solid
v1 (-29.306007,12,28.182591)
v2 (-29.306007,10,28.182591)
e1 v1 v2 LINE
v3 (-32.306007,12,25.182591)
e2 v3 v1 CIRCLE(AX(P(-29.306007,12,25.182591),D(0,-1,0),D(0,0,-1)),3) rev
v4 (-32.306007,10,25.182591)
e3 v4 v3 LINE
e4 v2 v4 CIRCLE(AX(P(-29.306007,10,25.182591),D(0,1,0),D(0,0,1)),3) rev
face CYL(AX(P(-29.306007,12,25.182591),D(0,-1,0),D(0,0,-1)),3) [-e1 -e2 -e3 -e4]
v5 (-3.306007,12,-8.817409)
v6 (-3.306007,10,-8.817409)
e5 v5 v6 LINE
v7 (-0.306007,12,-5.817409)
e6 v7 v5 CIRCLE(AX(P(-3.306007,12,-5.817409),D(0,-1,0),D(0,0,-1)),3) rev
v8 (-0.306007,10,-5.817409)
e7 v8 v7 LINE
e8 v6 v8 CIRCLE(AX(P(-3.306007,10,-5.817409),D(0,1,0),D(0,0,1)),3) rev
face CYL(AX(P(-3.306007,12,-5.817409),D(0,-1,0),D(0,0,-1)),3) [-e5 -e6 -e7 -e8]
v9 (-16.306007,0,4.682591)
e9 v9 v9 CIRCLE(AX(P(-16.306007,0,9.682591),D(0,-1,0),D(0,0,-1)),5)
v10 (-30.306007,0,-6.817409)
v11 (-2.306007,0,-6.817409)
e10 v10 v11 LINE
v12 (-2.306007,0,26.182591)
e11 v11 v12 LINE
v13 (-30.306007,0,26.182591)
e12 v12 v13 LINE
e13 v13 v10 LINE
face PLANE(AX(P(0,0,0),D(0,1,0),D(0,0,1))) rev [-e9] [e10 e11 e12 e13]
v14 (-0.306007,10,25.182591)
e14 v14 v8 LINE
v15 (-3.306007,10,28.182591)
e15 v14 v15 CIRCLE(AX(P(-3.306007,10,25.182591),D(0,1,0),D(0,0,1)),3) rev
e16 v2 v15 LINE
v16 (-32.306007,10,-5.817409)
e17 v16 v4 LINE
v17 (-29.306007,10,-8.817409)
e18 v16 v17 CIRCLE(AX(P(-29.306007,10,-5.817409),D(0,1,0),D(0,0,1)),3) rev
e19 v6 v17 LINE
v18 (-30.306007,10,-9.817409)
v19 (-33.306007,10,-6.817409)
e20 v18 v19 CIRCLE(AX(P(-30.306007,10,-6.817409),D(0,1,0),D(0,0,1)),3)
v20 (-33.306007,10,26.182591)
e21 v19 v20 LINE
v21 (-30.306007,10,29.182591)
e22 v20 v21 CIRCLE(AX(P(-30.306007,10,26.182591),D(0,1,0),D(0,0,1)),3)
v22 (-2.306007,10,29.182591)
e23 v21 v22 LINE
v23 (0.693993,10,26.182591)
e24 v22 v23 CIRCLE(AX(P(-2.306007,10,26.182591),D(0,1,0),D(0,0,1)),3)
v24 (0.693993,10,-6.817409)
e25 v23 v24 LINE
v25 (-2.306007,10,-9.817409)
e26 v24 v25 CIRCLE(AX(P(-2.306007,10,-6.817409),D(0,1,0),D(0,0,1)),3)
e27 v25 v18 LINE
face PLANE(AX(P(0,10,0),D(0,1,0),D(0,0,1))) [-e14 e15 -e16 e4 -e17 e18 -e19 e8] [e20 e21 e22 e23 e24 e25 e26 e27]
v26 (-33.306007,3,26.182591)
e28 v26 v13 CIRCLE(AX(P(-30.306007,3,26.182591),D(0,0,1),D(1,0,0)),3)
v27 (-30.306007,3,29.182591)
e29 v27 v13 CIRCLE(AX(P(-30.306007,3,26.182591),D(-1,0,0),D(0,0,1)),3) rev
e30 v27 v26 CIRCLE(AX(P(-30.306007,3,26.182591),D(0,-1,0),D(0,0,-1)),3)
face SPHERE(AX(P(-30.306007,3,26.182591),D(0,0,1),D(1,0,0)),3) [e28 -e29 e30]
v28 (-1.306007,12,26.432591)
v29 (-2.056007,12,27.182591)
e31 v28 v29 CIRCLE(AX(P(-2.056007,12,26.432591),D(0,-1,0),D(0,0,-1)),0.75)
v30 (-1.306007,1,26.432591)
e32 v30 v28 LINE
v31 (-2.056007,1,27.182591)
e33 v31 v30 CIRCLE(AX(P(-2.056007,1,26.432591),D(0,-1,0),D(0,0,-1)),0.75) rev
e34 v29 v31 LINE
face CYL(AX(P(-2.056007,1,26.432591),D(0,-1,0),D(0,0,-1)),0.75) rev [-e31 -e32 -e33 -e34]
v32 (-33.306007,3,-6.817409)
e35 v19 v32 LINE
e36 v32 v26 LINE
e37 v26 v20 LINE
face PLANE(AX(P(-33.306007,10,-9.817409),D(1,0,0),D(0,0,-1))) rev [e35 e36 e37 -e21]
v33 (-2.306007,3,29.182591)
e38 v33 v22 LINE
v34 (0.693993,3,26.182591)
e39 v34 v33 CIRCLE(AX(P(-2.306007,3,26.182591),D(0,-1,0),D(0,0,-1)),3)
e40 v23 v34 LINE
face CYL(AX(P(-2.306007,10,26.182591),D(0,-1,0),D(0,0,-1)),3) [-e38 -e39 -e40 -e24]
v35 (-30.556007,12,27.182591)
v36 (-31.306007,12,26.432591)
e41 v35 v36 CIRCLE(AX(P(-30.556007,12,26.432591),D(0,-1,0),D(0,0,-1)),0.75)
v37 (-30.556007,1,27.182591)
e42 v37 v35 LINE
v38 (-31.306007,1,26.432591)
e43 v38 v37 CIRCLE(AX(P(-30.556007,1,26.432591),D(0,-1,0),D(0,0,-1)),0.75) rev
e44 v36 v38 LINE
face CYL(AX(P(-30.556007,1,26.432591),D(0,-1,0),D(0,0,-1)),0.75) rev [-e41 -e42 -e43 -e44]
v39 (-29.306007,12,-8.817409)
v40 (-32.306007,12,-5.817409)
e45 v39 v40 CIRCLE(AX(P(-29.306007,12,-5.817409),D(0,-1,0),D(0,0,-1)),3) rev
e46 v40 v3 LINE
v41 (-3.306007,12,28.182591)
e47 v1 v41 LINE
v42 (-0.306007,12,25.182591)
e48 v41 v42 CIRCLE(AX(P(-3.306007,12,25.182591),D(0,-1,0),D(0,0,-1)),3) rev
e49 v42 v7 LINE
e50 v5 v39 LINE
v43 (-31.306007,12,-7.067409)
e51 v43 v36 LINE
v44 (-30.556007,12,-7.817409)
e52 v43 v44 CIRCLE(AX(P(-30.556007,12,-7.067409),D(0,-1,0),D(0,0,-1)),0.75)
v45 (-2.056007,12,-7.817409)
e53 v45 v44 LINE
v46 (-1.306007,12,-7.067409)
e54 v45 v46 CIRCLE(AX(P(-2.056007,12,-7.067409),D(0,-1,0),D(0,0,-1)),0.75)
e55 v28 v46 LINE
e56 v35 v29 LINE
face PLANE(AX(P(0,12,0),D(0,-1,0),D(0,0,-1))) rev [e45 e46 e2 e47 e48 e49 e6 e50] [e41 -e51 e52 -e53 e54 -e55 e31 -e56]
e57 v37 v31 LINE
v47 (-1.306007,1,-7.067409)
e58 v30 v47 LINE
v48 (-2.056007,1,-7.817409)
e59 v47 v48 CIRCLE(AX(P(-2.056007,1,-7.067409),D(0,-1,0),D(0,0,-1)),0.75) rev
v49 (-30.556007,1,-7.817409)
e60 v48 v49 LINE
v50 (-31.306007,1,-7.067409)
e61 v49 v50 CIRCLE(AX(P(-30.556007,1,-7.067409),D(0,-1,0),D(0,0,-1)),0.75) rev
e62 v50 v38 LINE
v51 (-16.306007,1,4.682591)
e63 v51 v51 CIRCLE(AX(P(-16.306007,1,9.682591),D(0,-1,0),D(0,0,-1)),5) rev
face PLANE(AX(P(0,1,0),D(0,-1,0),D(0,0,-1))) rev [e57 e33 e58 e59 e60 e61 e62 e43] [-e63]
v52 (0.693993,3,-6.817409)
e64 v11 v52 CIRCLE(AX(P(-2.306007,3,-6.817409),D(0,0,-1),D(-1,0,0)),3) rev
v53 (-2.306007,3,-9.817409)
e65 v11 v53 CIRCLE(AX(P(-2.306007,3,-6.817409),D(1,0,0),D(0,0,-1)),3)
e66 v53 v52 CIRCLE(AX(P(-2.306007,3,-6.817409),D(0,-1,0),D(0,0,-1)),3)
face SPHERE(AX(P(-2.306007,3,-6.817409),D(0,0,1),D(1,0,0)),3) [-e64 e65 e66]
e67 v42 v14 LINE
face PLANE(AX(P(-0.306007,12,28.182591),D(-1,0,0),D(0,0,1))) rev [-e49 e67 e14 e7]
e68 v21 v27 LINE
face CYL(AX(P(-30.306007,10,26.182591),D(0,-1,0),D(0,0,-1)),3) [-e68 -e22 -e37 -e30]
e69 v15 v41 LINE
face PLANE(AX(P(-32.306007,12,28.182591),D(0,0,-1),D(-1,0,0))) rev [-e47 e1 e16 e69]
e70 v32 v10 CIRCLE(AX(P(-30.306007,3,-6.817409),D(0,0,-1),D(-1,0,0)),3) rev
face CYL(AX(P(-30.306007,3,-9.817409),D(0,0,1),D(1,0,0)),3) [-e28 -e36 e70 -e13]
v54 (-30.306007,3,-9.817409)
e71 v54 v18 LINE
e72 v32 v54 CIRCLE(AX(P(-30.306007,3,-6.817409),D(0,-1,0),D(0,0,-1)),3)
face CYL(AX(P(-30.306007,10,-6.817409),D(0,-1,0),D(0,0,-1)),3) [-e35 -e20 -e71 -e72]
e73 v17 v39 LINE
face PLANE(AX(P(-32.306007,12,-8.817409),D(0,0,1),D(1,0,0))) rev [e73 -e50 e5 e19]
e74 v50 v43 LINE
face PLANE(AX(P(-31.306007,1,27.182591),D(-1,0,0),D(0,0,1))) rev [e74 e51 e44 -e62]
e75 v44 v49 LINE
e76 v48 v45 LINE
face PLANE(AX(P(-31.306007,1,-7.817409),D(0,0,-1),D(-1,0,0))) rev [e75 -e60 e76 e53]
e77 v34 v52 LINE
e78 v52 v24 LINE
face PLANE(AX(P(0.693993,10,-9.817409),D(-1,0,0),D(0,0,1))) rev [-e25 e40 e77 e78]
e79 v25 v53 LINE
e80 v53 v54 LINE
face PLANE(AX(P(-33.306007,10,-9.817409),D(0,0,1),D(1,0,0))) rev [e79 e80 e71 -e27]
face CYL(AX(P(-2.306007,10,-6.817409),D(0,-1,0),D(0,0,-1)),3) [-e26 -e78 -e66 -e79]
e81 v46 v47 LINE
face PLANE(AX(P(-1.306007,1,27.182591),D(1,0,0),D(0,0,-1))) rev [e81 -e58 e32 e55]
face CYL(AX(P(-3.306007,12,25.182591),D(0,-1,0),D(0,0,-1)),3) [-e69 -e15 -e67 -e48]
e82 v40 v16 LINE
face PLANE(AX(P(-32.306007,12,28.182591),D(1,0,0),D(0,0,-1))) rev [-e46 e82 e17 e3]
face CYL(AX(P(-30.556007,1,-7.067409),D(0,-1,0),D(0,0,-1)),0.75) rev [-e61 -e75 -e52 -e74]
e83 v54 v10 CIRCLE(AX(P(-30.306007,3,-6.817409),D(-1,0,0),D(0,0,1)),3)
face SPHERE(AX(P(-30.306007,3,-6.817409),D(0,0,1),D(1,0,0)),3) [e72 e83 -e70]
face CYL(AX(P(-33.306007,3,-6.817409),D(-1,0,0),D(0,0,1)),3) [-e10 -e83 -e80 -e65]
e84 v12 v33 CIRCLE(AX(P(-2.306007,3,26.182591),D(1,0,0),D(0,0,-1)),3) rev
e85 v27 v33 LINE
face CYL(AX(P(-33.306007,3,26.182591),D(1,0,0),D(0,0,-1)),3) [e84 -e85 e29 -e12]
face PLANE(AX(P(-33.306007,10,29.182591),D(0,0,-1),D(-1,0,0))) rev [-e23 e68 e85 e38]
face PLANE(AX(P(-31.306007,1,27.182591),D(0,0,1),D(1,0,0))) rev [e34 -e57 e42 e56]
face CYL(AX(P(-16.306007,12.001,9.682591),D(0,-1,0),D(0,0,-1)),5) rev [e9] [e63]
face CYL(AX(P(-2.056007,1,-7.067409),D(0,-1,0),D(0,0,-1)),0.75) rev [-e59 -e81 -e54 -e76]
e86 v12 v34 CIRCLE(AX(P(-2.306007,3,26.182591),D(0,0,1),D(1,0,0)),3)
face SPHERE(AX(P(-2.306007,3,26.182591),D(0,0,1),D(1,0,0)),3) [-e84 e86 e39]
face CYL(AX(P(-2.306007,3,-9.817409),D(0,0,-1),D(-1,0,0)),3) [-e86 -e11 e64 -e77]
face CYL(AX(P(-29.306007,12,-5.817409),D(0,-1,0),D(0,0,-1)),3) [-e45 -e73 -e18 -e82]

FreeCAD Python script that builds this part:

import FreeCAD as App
import Part
import Sketcher

V = App.Vector
Q = App.Units.Quantity


def edges_at(feature, points):
    """Names of the edges that pass closest to the given points."""
    edges = feature.Shape.Edges
    near = lambda p: min(range(len(edges)), key=lambda i: edges[i].distToShape(Part.Vertex(*p))[0])
    return sorted({f"Edge{near(p) + 1}" for p in points})

doc = App.newDocument("Part")
body = doc.addObject("PartDesign::Body", "Body")

# Sketch on XZ plane
sketch1 = doc.addObject("Sketcher::SketchObject", "Sketch")
body.addObject(sketch1)
sketch1.AttachmentSupport = (doc.XZ_Plane, [""])
sketch1.MapMode = "FlatFace"
sketch1.addGeometry([
    Part.LineSegment(V(-33, -10, 0), V(-33, 29, 0)),
    Part.LineSegment(V(-33, 29, 0), V(1, 29, 0)),
    Part.LineSegment(V(1, 29, 0), V(1, -10, 0)),
    Part.LineSegment(V(1, -10, 0), V(-33, -10, 0)),
], False)
sketch1.addConstraint([
    Sketcher.Constraint("Coincident", 0, 2, 1, 1),
    Sketcher.Constraint("Coincident", 1, 2, 2, 1),
    Sketcher.Constraint("Coincident", 2, 2, 3, 1),
    Sketcher.Constraint("Coincident", 3, 2, 0, 1),
    Sketcher.Constraint("Vertical", 0),
    Sketcher.Constraint("Horizontal", 1),
    Sketcher.Constraint("Vertical", 2),
    Sketcher.Constraint("Horizontal", 3),
    Sketcher.Constraint("DistanceX", 1, 1, 1, 2, Q("34 mm")),
    Sketcher.Constraint("DistanceY", 0, 1, 0, 2, Q("39 mm")),
    Sketcher.Constraint("DistanceY", -1, 1, 0, 2, Q("29.182591 mm")),
    Sketcher.Constraint("DistanceX", 0, 2, -1, 1, Q("33.306007 mm")),
])
pad1 = doc.addObject("PartDesign::Pad", "Pad")
body.addObject(pad1)
pad1.Profile = sketch1
pad1.Length = 10
pad1.Reversed = True

# Sketch on XZ plane
sketch2 = doc.addObject("Sketcher::SketchObject", "Sketch001")
body.addObject(sketch2)
sketch2.AttachmentSupport = (doc.XZ_Plane, [""])
sketch2.MapMode = "FlatFace"
sketch2.AttachmentOffset = App.Placement(V(0, 0, -10), App.Rotation())
sketch2.addGeometry([
    Part.LineSegment(V(-32, -9, 0), V(-32, 28, 0)),
    Part.LineSegment(V(-32, 28, 0), V(0, 28, 0)),
    Part.LineSegment(V(0, 28, 0), V(0, -9, 0)),
    Part.LineSegment(V(0, -9, 0), V(-32, -9, 0)),
], False)
sketch2.addConstraint([
    Sketcher.Constraint("Coincident", 0, 2, 1, 1),
    Sketcher.Constraint("Coincident", 1, 2, 2, 1),
    Sketcher.Constraint("Coincident", 2, 2, 3, 1),
    Sketcher.Constraint("Coincident", 3, 2, 0, 1),
    Sketcher.Constraint("Vertical", 0),
    Sketcher.Constraint("Horizontal", 1),
    Sketcher.Constraint("Vertical", 2),
    Sketcher.Constraint("Horizontal", 3),
    Sketcher.Constraint("DistanceX", 1, 1, 1, 2, Q("32 mm")),
    Sketcher.Constraint("DistanceY", 0, 1, 0, 2, Q("37 mm")),
    Sketcher.Constraint("DistanceY", -1, 1, 0, 2, Q("28.182591 mm")),
    Sketcher.Constraint("DistanceX", 0, 2, -1, 1, Q("32.306007 mm")),
])
pad2 = doc.addObject("PartDesign::Pad", "Pad001")
body.addObject(pad2)
pad2.Profile = sketch2
pad2.Length = 2
pad2.Reversed = True

# Sketch on XZ plane
sketch3 = doc.addObject("Sketcher::SketchObject", "Sketch002")
body.addObject(sketch3)
sketch3.AttachmentSupport = (doc.XZ_Plane, [""])
sketch3.MapMode = "FlatFace"
sketch3.AttachmentOffset = App.Placement(V(0, 0, -12), App.Rotation())
sketch3.addGeometry([
    Part.LineSegment(V(-31, -8, 0), V(-31, 27, 0)),
    Part.LineSegment(V(-31, 27, 0), V(-1, 27, 0)),
    Part.LineSegment(V(-1, 27, 0), V(-1, -8, 0)),
    Part.LineSegment(V(-1, -8, 0), V(-31, -8, 0)),
], False)
sketch3.addConstraint([
    Sketcher.Constraint("Coincident", 0, 2, 1, 1),
    Sketcher.Constraint("Coincident", 1, 2, 2, 1),
    Sketcher.Constraint("Coincident", 2, 2, 3, 1),
    Sketcher.Constraint("Coincident", 3, 2, 0, 1),
    Sketcher.Constraint("Vertical", 0),
    Sketcher.Constraint("Horizontal", 1),
    Sketcher.Constraint("Vertical", 2),
    Sketcher.Constraint("Horizontal", 3),
    Sketcher.Constraint("DistanceX", 1, 1, 1, 2, Q("30 mm")),
    Sketcher.Constraint("DistanceY", 0, 1, 0, 2, Q("35 mm")),
    Sketcher.Constraint("DistanceY", -1, 1, 0, 2, Q("27.182591 mm")),
    Sketcher.Constraint("DistanceX", 0, 2, -1, 1, Q("31.306007 mm")),
])
pocket1 = doc.addObject("PartDesign::Pocket", "Pocket")
body.addObject(pocket1)
pocket1.Profile = sketch3
pocket1.Length = 11
pocket1.Reversed = True
doc.recompute()

fillet = doc.addObject("PartDesign::Fillet", "Fillet")
body.addObject(fillet)
fillet.Base = (pocket1, edges_at(pocket1, [
    (-32.306, 11, -8.817),
    (-32.306, 11, 28.183),
    (-0.306, 11, 28.183),
    (-0.306, 11, -8.817),
    (-16.306, 0, -9.817),
    (0.694, 0, 9.683),
    (-16.306, 0, 29.183),
    (-33.306, 0, 9.683),
    (-33.306, 5, -9.817),
    (0.694, 5, -9.817),
    (0.694, 5, 29.183),
    (-33.306, 5, 29.183),
]))
fillet.Radius = 3
doc.recompute()

fillet2 = doc.addObject("PartDesign::Fillet", "Fillet001")
body.addObject(fillet2)
fillet2.Base = (fillet, edges_at(fillet, [
    (-31.306, 6.5, 27.183),
    (-31.306, 6.5, -7.817),
    (-1.306, 6.5, -7.817),
    (-1.306, 6.5, 27.183),
]))
fillet2.Radius = 0.75

# Sketch on XZ plane
sketch4 = doc.addObject("Sketcher::SketchObject", "Sketch003")
body.addObject(sketch4)
sketch4.AttachmentSupport = (doc.XZ_Plane, [""])
sketch4.MapMode = "FlatFace"
sketch4.addGeometry(Part.Circle(V(-16, 10, 0), V(0, 0, 1), 5), False)
sketch4.addConstraint([
    Sketcher.Constraint("Diameter", 0, Q("10 mm")),
    Sketcher.Constraint("DistanceY", -1, 1, 0, 3, Q("9.682591 mm")),
    Sketcher.Constraint("DistanceX", 0, 3, -1, 1, Q("16.306007 mm")),
])
pocket2 = doc.addObject("PartDesign::Pocket", "Pocket001")
body.addObject(pocket2)
pocket2.Profile = sketch4
pocket2.Type = "UpToFirst"

doc.recompute()
